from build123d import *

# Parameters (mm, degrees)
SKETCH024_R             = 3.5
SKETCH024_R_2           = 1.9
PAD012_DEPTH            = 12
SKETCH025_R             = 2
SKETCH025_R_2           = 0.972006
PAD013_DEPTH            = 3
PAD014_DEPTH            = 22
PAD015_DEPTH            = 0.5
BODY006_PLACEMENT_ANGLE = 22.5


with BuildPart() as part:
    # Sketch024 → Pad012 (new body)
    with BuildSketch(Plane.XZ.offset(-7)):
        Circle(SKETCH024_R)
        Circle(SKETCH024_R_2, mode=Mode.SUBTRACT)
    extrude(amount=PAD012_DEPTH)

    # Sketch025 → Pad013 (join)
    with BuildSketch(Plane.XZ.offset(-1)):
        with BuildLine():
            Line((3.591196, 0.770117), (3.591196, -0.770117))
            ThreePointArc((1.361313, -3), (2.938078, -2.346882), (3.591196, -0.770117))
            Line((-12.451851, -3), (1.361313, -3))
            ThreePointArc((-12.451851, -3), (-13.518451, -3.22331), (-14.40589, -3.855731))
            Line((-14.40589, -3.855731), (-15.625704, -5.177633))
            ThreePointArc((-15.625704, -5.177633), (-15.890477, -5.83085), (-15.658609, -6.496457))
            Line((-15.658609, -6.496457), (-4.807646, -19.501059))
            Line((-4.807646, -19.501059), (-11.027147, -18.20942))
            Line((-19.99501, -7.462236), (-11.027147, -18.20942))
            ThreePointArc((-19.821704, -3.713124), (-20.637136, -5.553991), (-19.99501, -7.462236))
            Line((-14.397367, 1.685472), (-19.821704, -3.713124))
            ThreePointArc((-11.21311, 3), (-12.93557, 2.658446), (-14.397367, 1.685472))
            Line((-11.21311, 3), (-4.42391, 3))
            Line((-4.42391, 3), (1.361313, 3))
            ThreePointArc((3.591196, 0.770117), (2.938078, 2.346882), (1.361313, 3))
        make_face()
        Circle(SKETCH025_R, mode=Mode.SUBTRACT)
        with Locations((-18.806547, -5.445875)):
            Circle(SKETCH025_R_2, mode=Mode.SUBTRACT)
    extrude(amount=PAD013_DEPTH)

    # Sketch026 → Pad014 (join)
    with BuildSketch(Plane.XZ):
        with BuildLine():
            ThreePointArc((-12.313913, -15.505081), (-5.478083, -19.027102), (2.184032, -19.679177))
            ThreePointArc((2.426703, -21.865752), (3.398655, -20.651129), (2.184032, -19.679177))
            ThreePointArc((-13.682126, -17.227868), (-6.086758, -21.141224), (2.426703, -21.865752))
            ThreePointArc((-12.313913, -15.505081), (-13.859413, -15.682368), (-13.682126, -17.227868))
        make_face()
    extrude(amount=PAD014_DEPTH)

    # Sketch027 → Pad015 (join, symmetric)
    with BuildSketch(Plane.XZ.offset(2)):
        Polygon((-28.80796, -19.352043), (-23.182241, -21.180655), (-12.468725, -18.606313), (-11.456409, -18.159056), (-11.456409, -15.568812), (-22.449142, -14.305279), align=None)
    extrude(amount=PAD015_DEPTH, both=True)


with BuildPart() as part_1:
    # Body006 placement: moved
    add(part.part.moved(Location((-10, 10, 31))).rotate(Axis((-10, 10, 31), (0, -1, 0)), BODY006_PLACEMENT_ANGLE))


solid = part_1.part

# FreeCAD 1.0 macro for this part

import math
import FreeCAD as App
import Part
import Sketcher
from FreeCAD import Vector
Q = App.Units.Quantity


def add_polygon(sketch, points):
    """Adds a closed chain of lines whose ends are joined by coincident constraints."""
    first, n = sketch.GeometryCount, len(points)
    for a, b in zip(points, points[1:] + points[:1]):
        sketch.addGeometry(Part.LineSegment(App.Vector(*a, 0), App.Vector(*b, 0)), False)
    for i in range(n):
        sketch.addConstraint(Sketcher.Constraint("Coincident", first + i, 2, first + (i + 1) % n, 1))

doc = App.newDocument("Part")
body = doc.addObject("PartDesign::Body", "Body")

# Sketch on XZ plane
sketch1 = body.newObject("Sketcher::SketchObject", "Sketch")
sketch1.AttachmentSupport = (doc.getObject("XZ_Plane"), [""])
sketch1.MapMode = "FlatFace"
sketch1.AttachmentOffset = App.Placement(Vector(0, 0, -7), App.Rotation())
sketch1.addGeometry([
    Part.Circle(Vector(0, 0, 0), Vector(0, 0, 1), 3.5),
    Part.Circle(Vector(0, 0, 0), Vector(0, 0, 1), 1.9),
], False)
sketch1.addConstraint([
    Sketcher.Constraint("Coincident", 0, 3, -1, 1),
    Sketcher.Constraint("Coincident", 1, 3, -1, 1),
    Sketcher.Constraint("Diameter", 0, Q("7 mm")),
    Sketcher.Constraint("Diameter", 1, Q("3.8 mm")),
])
pad1 = body.newObject("PartDesign::Pad", "Pad")
pad1.Profile = sketch1
pad1.Length = 12

# Sketch on XZ plane
sketch2 = body.newObject("Sketcher::SketchObject", "Sketch001")
sketch2.AttachmentSupport = (doc.getObject("XZ_Plane"), [""])
sketch2.MapMode = "FlatFace"
sketch2.AttachmentOffset = App.Placement(Vector(0, 0, -1), App.Rotation())
sketch2.addGeometry([
    Part.LineSegment(Vector(3.591196, -0.770117, 0), Vector(3.591196, 0.770117, 0)),  # 0
    Part.ArcOfCircle(Part.Circle(Vector(1.361312, 0.770116, 0), Vector(0, 0, 1), 2.229884), math.radians(0.000034), math.radians(89.999966)),  # 1
    Part.LineSegment(Vector(1.361313, 3, 0), Vector(-11.21311, 3, 0)),  # 2
    Part.ArcOfCircle(Part.Circle(Vector(-11.21311, -1.513969, 0), Vector(0, 0, 1), 4.513969), math.radians(90.000004), math.radians(134.863718)),  # 3
    Part.LineSegment(Vector(-14.397367, 1.685472, 0), Vector(-19.821704, -3.713124, 0)),  # 4
    Part.ArcOfCircle(Part.Circle(Vector(-17.861892, -5.68228, 0), Vector(0, 0, 1), 2.778207), math.radians(134.863741), math.radians(219.842932)),  # 5
    Part.LineSegment(Vector(-19.99501, -7.462236, 0), Vector(-11.027147, -18.20942, 0)),  # 6
    Part.LineSegment(Vector(-11.027147, -18.20942, 0), Vector(-4.807646, -19.501059, 0)),  # 7
    Part.LineSegment(Vector(-4.807646, -19.501059, 0), Vector(-15.658609, -6.496457, 0)),  # 8
    Part.ArcOfCircle(Part.Circle(Vector(-14.890787, -5.855792, 0), Vector(0, 0, 1), 1.000002), math.radians(137.300146), math.radians(219.841358)),  # 9
    Part.LineSegment(Vector(-15.625704, -5.177633, 0), Vector(-14.40589, -3.855731, 0)),  # 10
    Part.ArcOfCircle(Part.Circle(Vector(-12.451852, -5.658861, 0), Vector(0, 0, 1), 2.658861), math.radians(89.999975), math.radians(137.300068)),  # 11
    Part.LineSegment(Vector(-12.451851, -3, 0), Vector(1.361313, -3, 0)),  # 12
    Part.ArcOfCircle(Part.Circle(Vector(1.361312, -0.770116, 0), Vector(0, 0, 1), 2.229884), math.radians(-89.999966), math.radians(-0.000034)),  # 13
    Part.Circle(Vector(-18.806547, -5.445875, 0), Vector(0, 0, 1), 0.972006),  # 14
    Part.Circle(Vector(0, 0, 0), Vector(0, 0, 1), 2),  # 15
], False)
sketch2.addConstraint([
    Sketcher.Constraint("Coincident", 0, 2, 1, 1),
    Sketcher.Constraint("Coincident", 1, 2, 2, 1),
    Sketcher.Constraint("Coincident", 2, 2, 3, 1),
    Sketcher.Constraint("Coincident", 3, 2, 4, 1),
    Sketcher.Constraint("Coincident", 4, 2, 5, 1),
    Sketcher.Constraint("Coincident", 5, 2, 6, 1),
    Sketcher.Constraint("Coincident", 6, 2, 7, 1),
    Sketcher.Constraint("Coincident", 7, 2, 8, 1),
    Sketcher.Constraint("Coincident", 8, 2, 9, 2),
    Sketcher.Constraint("Coincident", 9, 1, 10, 1),
    Sketcher.Constraint("Coincident", 10, 2, 11, 2),
    Sketcher.Constraint("Coincident", 11, 1, 12, 1),
    Sketcher.Constraint("Coincident", 12, 2, 13, 1),
    Sketcher.Constraint("Coincident", 13, 2, 0, 1),
    Sketcher.Constraint("Vertical", 0),
    Sketcher.Constraint("Horizontal", 2),
    Sketcher.Constraint("Horizontal", 12),
    Sketcher.Constraint("Coincident", 15, 3, -1, 1),
    Sketcher.Constraint("Diameter", 15, Q("4 mm")),
    Sketcher.Constraint("Radius", 9, Q("1.000002 mm")),
    Sketcher.Constraint("DistanceY", -1, 1, 1, 2, Q("3 mm")),
    Sketcher.Constraint("DistanceY", 11, 1, -1, 1, Q("3 mm")),
    Sketcher.Constraint("Radius", 3, Q("4.513969 mm")),
    Sketcher.Constraint("Radius", 11, Q("2.658861 mm")),
    Sketcher.Constraint("Diameter", 14, Q("1.944012 mm")),
    Sketcher.Constraint("Radius", 1, Q("2.229884 mm")),
    Sketcher.Constraint("Radius", 5, Q("2.778207 mm")),
    Sketcher.Constraint("Radius", 13, Q("2.229884 mm")),
    Sketcher.Constraint("DistanceX", 9, 3, 1, 3, Q("16.252098 mm")),
    Sketcher.Constraint("DistanceX", 14, 3, 6, 2, Q("7.7794 mm")),
    Sketcher.Constraint("DistanceX", 6, 2, 7, 2, Q("6.219501 mm")),
    Sketcher.Constraint("DistanceY", 7, 2, 11, 3, Q("13.842198 mm")),
    Sketcher.Constraint("DistanceX", 5, 2, 8, 2, Q("4.336401 mm")),
    Sketcher.Constraint("Distance", 4, Q("7.652991 mm")),
    Sketcher.Constraint("DistanceX", 2, 2, 2, 1, Q("12.574423 mm")),
    Sketcher.Constraint("DistanceX", 12, 1, 12, 2, Q("13.813164 mm")),
    Sketcher.Constraint("DistanceY", 0, 1, 0, 2, Q("1.540234 mm")),
    Sketcher.Constraint("DistanceX", -1, 1, 1, 3, Q("1.361312 mm")),
    Sketcher.Constraint("DistanceX", 3, 3, -1, 1, Q("11.21311 mm")),
    Sketcher.Constraint("DistanceY", 5, 3, -1, 1, Q("5.68228 mm")),
    Sketcher.Constraint("DistanceY", 9, 3, -1, 1, Q("5.855792 mm")),
    Sketcher.Constraint("DistanceX", 2, 2, -1, 1, Q("11.21311 mm")),
    Sketcher.Constraint("DistanceX", 5, 2, -1, 1, Q("19.99501 mm")),
    Sketcher.Constraint("DistanceY", 6, 2, -1, 1, Q("18.20942 mm")),
    Sketcher.Constraint("DistanceX", 10, 2, -1, 1, Q("14.40589 mm")),
    Sketcher.Constraint("DistanceY", 10, 2, -1, 1, Q("3.855731 mm")),
    Sketcher.Constraint("DistanceX", 11, 1, -1, 1, Q("12.451851 mm")),
    Sketcher.Constraint("DistanceX", 5, 3, 11, 3, Q("5.41004 mm")),
    Sketcher.Constraint("DistanceX", 14, 3, 9, 3, Q("3.91576 mm")),
    Sketcher.Constraint("DistanceY", 14, 3, 13, 3, Q("4.675759 mm")),
    Sketcher.Constraint("DistanceY", 3, 3, 3, 2, Q("3.199441 mm")),
    Sketcher.Constraint("DistanceY", 9, 3, 9, 1, Q("0.678159 mm")),
    Sketcher.Constraint("DistanceY", -1, 1, 0, 2, Q("0.770117 mm")),
])
pad2 = body.newObject("PartDesign::Pad", "Pad001")
pad2.Profile = sketch2
pad2.Length = 3

# Sketch on XZ plane
sketch3 = body.newObject("Sketcher::SketchObject", "Sketch002")
sketch3.AttachmentSupport = (doc.getObject("XZ_Plane"), [""])
sketch3.MapMode = "FlatFace"
sketch3.addGeometry([
    Part.ArcOfCircle(Part.Circle(Vector(0, 0, 0), Vector(0, 0, 1), 19.8), math.radians(-128), math.radians(-84)),
    Part.ArcOfCircle(Part.Circle(Vector(-13, -16.4, 0), Vector(0, 0, 1), 1.1), math.radians(52), math.radians(232)),
    Part.ArcOfCircle(Part.Circle(Vector(0, 0, 0), Vector(0, 0, 1), 22), math.radians(-128), math.radians(-84)),
    Part.ArcOfCircle(Part.Circle(Vector(2.3, -20.8, 0), Vector(0, 0, 1), 1.1), math.radians(-84), math.radians(96)),
], False)
sketch3.addConstraint([
    Sketcher.Constraint("Tangent", 0, 1, 1, 1),
    Sketcher.Constraint("Tangent", 1, 2, 2, 1),
    Sketcher.Constraint("Tangent", 2, 2, 3, 1),
    Sketcher.Constraint("Tangent", 3, 2, 0, 2),
    Sketcher.Constraint("Coincident", 0, 3, -1, 1),
    Sketcher.Constraint("Coincident", 2, 3, -1, 1),
    Sketcher.Constraint("Radius", 1, Q("1.1 mm")),
    Sketcher.Constraint("Radius", 0, Q("19.799998 mm")),
    Sketcher.Constraint("DistanceX", 1, 3, -1, 1, Q("12.998019 mm")),
    Sketcher.Constraint("DistanceX", -1, 1, 3, 2, Q("2.184032 mm")),
])
pad3 = body.newObject("PartDesign::Pad", "Pad002")
pad3.Profile = sketch3
pad3.Length = 22

# Sketch on XZ plane
sketch4 = body.newObject("Sketcher::SketchObject", "Sketch003")
sketch4.AttachmentSupport = (doc.getObject("XZ_Plane"), [""])
sketch4.MapMode = "FlatFace"
sketch4.AttachmentOffset = App.Placement(Vector(0, 0, 2), App.Rotation())
add_polygon(sketch4, [(-28.8, -19.4), (-23.2, -21.2), (-12.5, -18.6), (-11.5, -18.2), (-11.5, -15.6), (-22.4, -14.3)])  # lines 0-5
sketch4.addConstraint([
    Sketcher.Constraint("Vertical", 3),
    Sketcher.Constraint("DistanceY", 0, 2, 2, 2, Q("3.021599 mm")),
    Sketcher.Constraint("DistanceY", 1, 2, 3, 2, Q("3.037501 mm")),
    Sketcher.Constraint("DistanceX", 0, 2, 4, 2, Q("0.733099 mm")),
    Sketcher.Constraint("Distance", 0, Q("5.915449 mm")),
    Sketcher.Constraint("Distance", 1, Q("11.018469 mm")),
    Sketcher.Constraint("Distance", 4, Q("11.065112 mm")),
    Sketcher.Constraint("DistanceY", 3, 1, 3, 2, Q("2.590244 mm")),
    Sketcher.Constraint("DistanceX", 0, 2, -1, 1, Q("23.182241 mm")),
    Sketcher.Constraint("DistanceX", 2, 2, -1, 1, Q("11.456409 mm")),
    Sketcher.Constraint("DistanceY", 4, 2, -1, 1, Q("14.305279 mm")),
    Sketcher.Constraint("DistanceX", 5, 2, -1, 1, Q("28.80796 mm")),
])
pad4 = body.newObject("PartDesign::Pad", "Pad003")
pad4.Profile = sketch4
pad4.Length = 1
pad4.Midplane = True
body2 = doc.addObject("PartDesign::Body", "Body001")
doc.recompute()

body.Placement = App.Placement(Vector(-10, 10, 31), App.Rotation(Vector(0, -1, 0), 22.5))
boolean = body2.newObject("PartDesign::Boolean", "Boolean")
boolean.Type = "Fuse"
boolean.addObjects([body])

doc.recompute()
